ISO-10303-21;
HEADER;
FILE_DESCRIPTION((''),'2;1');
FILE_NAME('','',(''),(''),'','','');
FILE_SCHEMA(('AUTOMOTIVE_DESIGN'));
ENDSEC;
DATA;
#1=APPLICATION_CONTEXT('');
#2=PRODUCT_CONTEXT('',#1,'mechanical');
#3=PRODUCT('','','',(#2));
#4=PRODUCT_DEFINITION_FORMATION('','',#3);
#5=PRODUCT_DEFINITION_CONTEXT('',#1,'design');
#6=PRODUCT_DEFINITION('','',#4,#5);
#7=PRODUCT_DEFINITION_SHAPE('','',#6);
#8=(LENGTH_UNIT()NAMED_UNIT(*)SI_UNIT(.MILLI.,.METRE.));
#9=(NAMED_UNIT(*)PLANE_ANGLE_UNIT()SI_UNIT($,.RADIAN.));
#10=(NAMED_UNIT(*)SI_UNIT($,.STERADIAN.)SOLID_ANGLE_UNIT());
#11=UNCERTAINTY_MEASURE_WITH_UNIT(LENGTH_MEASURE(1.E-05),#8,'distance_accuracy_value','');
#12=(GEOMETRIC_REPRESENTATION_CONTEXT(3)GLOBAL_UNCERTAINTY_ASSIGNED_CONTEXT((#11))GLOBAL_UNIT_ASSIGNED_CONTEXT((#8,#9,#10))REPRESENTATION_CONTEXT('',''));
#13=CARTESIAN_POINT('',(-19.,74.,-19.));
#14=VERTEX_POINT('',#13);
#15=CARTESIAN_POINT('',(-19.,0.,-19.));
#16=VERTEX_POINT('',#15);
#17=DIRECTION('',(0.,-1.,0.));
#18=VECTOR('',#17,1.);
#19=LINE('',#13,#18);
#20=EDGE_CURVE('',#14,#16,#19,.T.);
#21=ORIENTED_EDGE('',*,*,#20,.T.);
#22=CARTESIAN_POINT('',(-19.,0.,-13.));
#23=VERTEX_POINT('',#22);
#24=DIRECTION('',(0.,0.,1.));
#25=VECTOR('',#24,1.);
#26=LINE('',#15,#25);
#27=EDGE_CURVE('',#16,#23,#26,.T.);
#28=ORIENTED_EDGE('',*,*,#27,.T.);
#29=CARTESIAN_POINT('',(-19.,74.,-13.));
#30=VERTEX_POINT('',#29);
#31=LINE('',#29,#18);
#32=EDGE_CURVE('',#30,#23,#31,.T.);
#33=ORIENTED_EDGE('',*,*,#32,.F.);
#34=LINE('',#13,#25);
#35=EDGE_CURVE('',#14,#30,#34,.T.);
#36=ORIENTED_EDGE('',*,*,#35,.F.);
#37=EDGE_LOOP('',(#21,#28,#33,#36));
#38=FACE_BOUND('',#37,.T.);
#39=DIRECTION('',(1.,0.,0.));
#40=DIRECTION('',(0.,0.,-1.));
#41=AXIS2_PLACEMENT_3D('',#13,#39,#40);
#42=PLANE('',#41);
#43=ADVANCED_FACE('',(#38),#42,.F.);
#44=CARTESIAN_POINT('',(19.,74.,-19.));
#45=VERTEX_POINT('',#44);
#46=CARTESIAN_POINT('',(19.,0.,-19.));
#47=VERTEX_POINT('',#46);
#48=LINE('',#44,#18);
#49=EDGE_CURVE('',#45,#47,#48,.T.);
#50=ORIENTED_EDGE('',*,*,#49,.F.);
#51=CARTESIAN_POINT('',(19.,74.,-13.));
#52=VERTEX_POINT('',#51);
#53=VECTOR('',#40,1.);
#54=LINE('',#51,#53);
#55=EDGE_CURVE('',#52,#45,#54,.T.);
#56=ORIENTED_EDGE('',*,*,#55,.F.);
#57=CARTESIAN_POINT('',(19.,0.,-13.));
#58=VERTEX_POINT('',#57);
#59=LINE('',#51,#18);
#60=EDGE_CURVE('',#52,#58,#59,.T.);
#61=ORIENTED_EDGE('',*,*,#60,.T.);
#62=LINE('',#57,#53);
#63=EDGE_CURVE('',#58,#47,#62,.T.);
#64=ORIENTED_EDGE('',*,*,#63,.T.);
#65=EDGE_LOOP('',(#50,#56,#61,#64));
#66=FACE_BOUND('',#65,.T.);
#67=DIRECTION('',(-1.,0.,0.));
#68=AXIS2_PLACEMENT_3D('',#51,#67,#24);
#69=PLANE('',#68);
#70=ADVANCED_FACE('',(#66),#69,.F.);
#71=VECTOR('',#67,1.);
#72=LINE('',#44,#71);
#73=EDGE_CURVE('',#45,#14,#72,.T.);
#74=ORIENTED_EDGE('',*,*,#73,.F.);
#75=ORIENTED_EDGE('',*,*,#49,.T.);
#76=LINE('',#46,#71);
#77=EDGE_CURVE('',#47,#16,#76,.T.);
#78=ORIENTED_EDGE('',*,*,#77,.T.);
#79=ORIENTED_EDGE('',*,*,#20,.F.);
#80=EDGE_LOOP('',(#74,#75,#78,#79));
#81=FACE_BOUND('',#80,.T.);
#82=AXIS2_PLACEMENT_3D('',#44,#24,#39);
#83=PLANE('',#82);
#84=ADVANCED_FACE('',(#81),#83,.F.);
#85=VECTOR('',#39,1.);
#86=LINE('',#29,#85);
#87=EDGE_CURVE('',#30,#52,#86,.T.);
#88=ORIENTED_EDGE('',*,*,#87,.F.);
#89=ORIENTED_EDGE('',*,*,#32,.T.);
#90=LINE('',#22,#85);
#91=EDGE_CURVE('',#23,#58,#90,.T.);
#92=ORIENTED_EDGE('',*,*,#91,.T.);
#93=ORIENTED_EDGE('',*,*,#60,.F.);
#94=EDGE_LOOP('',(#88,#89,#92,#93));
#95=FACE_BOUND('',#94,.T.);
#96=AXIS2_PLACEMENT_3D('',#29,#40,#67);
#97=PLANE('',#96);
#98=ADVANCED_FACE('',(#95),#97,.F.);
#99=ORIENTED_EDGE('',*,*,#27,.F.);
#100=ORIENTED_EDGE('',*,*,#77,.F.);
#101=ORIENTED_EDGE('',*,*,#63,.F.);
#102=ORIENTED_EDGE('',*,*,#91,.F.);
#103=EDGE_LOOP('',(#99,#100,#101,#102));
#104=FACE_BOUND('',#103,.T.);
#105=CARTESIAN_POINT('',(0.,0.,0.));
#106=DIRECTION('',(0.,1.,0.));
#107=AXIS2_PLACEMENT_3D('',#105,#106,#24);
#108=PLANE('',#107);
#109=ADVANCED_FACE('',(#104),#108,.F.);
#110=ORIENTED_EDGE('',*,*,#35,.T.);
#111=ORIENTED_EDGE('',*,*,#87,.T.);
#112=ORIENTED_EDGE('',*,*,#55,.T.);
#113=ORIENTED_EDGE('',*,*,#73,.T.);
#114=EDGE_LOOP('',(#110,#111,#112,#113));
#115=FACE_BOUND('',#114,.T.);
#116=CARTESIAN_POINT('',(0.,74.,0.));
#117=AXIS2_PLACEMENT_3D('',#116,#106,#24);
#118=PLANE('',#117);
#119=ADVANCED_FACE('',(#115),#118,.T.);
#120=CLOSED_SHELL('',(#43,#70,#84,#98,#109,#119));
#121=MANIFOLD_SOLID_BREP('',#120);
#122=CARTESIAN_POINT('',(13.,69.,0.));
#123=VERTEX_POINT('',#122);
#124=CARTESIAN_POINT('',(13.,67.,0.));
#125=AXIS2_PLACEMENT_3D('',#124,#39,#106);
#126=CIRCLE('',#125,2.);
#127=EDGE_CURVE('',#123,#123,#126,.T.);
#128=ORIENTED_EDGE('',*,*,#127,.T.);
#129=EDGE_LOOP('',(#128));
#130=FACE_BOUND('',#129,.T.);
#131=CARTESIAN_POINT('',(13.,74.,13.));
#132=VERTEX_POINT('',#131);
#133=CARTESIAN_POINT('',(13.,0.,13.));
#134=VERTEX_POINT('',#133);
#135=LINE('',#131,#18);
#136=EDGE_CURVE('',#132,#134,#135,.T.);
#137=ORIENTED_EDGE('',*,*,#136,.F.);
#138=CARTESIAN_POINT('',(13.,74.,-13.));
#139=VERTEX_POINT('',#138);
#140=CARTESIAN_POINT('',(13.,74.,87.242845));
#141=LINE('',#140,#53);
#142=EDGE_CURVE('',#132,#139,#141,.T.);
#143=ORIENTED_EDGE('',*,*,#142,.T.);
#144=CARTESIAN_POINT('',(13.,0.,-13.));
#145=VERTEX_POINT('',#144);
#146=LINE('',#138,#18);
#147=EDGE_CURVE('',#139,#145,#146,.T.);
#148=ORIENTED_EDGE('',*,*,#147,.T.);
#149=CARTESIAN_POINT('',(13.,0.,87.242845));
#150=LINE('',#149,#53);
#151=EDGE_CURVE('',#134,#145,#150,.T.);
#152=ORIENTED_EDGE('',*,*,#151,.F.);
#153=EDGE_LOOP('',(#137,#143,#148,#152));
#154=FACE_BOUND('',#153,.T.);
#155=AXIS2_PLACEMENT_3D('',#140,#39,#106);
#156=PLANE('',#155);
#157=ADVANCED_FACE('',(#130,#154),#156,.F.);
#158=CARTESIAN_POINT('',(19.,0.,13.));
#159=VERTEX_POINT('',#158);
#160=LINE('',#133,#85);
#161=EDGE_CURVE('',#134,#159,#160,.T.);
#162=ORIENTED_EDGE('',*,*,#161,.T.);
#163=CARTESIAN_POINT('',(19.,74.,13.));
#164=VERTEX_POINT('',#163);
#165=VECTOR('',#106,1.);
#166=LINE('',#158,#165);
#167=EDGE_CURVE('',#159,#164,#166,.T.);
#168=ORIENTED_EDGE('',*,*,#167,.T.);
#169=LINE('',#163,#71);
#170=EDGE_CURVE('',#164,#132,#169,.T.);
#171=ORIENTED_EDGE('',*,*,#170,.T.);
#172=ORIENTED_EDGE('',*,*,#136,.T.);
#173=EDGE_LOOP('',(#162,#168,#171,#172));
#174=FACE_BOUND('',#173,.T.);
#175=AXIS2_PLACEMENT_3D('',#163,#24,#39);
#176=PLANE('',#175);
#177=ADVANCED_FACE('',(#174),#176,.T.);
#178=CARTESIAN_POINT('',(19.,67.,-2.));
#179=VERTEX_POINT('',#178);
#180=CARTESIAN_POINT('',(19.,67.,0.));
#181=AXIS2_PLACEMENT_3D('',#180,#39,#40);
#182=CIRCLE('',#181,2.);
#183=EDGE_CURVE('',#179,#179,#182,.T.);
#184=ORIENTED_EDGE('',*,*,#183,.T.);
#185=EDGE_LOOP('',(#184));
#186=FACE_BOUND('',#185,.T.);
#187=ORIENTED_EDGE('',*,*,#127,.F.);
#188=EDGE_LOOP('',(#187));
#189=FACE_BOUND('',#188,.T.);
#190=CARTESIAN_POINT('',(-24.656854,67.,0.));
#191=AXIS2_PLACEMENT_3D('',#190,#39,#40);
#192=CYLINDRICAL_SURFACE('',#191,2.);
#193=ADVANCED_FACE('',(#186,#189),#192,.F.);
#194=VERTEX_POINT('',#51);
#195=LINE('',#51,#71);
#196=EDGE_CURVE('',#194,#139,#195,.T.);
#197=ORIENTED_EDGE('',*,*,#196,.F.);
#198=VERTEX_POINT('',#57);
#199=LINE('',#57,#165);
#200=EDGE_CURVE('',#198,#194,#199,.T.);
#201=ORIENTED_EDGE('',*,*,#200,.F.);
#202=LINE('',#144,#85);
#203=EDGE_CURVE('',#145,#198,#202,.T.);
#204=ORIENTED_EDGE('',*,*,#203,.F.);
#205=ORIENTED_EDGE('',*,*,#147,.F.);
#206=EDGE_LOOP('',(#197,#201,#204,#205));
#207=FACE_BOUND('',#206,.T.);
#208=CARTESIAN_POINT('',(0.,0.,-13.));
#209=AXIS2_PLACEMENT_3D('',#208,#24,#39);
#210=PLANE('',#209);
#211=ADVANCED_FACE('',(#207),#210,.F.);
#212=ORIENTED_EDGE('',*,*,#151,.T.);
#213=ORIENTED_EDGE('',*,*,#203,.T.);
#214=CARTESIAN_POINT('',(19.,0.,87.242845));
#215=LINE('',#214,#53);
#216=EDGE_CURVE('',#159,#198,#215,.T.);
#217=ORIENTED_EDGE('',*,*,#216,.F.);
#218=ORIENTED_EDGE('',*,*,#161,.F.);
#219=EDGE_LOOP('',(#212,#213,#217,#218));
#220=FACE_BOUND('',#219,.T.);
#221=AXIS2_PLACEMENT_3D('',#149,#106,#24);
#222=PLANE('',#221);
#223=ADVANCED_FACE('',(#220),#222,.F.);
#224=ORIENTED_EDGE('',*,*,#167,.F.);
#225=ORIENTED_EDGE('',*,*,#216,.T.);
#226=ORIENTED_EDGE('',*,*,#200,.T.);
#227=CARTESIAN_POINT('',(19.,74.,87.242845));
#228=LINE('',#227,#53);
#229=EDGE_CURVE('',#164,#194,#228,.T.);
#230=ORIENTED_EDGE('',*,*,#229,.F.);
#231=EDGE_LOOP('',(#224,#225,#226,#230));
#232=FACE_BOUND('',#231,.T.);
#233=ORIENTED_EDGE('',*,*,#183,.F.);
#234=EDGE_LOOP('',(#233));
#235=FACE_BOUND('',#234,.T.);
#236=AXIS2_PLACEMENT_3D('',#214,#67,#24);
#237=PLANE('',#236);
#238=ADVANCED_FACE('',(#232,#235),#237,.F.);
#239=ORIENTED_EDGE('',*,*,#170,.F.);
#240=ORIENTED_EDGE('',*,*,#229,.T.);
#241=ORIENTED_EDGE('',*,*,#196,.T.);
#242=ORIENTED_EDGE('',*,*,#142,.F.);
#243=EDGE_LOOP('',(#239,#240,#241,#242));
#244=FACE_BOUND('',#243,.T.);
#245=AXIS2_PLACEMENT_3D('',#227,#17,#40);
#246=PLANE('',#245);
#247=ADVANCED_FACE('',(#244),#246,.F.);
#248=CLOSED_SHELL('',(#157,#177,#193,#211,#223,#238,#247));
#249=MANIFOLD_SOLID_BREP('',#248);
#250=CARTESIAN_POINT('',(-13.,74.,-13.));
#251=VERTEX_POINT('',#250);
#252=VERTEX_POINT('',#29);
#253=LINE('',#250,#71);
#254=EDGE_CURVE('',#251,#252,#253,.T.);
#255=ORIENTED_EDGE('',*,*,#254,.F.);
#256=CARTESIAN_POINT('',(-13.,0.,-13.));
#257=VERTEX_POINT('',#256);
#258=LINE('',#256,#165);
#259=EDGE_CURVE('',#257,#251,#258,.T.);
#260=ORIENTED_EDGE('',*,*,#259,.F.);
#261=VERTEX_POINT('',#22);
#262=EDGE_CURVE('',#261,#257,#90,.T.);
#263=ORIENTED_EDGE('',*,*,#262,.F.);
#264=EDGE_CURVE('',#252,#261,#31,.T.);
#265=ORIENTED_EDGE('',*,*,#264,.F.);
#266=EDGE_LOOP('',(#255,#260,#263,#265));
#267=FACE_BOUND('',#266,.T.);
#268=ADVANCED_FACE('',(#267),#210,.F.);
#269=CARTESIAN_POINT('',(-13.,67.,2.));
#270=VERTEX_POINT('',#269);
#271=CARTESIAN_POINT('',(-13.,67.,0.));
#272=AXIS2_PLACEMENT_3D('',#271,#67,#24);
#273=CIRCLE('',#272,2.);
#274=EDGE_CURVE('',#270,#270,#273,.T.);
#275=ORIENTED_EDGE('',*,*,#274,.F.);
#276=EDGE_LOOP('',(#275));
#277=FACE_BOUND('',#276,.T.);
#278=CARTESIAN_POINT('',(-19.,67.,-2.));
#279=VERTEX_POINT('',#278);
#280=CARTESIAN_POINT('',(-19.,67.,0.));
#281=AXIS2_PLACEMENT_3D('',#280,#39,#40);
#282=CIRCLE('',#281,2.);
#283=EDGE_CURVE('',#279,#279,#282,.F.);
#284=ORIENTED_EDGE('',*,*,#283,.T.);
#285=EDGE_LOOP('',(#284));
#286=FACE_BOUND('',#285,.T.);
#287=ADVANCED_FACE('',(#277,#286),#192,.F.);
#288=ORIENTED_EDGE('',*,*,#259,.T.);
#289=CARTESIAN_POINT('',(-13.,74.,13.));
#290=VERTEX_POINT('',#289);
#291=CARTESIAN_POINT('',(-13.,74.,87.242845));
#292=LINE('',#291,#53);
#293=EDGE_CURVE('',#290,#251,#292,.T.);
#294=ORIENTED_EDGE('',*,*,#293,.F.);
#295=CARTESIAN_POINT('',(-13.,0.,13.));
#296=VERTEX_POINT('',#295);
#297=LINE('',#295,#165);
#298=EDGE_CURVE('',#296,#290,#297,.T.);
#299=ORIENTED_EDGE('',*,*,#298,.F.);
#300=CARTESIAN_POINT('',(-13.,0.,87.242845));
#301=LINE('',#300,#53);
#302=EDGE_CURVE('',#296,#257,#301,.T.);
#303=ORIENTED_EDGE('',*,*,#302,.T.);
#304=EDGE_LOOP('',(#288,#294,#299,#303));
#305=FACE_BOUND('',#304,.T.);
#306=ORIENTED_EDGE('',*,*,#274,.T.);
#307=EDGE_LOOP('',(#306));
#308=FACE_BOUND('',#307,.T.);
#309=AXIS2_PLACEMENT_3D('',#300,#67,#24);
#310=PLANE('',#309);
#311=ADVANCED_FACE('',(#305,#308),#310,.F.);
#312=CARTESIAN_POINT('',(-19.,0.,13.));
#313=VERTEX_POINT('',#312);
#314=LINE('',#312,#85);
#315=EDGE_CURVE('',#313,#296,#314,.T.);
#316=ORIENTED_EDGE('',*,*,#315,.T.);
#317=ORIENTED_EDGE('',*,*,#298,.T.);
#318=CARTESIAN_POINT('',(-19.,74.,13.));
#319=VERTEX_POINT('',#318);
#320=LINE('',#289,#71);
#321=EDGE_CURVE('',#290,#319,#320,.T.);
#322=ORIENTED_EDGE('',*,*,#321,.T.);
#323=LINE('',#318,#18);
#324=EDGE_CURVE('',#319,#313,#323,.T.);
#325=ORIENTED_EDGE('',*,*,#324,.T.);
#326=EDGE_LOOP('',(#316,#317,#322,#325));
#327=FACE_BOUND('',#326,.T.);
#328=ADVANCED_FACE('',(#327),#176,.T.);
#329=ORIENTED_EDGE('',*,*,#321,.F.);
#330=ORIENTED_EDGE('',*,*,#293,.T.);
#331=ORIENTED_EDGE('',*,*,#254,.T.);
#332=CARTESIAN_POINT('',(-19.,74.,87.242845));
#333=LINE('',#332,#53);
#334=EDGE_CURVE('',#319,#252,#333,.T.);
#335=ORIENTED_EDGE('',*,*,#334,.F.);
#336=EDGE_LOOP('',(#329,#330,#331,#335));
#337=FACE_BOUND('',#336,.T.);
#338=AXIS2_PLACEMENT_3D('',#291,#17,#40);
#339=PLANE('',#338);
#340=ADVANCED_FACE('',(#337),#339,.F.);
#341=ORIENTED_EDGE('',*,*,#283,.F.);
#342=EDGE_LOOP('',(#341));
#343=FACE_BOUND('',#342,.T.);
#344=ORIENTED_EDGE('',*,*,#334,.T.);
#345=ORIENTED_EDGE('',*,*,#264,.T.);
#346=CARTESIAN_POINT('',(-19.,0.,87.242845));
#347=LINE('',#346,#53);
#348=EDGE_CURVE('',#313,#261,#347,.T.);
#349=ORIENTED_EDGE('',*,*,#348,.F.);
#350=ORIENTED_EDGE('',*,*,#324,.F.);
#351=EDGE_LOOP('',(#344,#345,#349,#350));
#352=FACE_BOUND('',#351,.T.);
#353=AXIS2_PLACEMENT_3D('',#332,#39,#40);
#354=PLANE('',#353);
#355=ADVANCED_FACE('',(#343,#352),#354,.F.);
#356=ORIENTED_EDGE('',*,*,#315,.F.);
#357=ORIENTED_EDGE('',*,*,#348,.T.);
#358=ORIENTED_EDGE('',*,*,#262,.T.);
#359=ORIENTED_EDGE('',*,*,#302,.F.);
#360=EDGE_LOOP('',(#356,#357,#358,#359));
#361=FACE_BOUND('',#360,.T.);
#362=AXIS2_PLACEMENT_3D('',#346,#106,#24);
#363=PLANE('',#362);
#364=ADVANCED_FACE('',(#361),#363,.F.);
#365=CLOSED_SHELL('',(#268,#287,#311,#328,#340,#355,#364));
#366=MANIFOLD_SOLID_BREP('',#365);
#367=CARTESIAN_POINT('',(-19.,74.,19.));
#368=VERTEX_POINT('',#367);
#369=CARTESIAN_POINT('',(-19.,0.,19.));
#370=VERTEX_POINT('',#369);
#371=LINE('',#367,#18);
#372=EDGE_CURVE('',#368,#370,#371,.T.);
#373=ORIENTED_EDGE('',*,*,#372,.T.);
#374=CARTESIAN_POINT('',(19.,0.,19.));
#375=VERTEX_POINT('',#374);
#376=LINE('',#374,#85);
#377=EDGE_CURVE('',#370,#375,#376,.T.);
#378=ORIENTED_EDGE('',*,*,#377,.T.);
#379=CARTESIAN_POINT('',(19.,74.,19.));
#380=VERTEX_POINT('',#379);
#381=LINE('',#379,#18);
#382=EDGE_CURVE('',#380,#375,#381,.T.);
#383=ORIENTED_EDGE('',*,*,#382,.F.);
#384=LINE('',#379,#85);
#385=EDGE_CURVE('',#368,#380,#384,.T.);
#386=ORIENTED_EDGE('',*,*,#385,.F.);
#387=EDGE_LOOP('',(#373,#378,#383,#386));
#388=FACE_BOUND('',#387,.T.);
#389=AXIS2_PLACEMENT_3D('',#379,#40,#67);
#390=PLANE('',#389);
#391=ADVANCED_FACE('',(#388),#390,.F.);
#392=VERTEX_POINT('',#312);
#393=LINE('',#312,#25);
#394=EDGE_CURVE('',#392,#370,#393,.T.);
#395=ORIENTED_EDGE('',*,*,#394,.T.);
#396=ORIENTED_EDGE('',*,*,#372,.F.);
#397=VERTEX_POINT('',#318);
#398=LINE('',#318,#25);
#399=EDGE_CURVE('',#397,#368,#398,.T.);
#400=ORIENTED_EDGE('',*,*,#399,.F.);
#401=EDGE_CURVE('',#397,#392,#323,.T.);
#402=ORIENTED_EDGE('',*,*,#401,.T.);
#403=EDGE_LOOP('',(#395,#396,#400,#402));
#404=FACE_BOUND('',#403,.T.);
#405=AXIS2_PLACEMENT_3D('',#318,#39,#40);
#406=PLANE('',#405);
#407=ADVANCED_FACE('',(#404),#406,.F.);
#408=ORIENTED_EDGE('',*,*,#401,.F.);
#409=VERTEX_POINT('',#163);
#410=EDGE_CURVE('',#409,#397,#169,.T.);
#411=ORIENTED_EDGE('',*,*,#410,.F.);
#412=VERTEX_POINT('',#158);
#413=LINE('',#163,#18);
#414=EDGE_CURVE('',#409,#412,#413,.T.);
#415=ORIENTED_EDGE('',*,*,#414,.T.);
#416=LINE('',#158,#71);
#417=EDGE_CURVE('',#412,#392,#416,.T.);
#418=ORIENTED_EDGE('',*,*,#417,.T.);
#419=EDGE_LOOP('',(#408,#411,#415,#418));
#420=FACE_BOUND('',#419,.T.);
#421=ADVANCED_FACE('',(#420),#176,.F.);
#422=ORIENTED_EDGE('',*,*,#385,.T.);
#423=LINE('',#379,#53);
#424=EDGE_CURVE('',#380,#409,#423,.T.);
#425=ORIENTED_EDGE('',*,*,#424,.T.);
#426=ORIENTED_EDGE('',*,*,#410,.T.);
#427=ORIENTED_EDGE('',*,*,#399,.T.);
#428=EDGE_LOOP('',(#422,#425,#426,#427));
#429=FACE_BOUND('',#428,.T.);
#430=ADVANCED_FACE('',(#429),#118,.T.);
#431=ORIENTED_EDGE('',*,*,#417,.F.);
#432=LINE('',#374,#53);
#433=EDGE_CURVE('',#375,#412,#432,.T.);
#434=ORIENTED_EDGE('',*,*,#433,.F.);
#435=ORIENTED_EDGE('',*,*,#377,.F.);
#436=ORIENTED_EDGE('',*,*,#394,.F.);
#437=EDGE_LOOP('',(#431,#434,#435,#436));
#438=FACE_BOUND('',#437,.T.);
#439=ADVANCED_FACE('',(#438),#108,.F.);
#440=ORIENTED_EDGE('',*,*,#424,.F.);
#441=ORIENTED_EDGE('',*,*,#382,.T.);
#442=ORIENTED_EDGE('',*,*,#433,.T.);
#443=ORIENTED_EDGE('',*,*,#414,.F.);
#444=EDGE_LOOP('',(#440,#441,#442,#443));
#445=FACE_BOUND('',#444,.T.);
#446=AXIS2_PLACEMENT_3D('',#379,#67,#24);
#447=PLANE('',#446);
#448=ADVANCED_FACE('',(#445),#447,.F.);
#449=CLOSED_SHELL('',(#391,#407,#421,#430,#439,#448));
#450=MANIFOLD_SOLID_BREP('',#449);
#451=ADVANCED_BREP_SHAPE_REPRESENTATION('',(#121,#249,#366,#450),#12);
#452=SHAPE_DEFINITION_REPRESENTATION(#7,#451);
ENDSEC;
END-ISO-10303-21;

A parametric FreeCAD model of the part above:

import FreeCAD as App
import Part
import Sketcher
from FreeCAD import Vector
Q = App.Units.Quantity


def add_polygon(sketch, points):
    """Adds a closed chain of lines whose ends are joined by coincident constraints."""
    first, n = sketch.GeometryCount, len(points)
    for a, b in zip(points, points[1:] + points[:1]):
        sketch.addGeometry(Part.LineSegment(App.Vector(*a, 0), App.Vector(*b, 0)), False)
    for i in range(n):
        sketch.addConstraint(Sketcher.Constraint("Coincident", first + i, 2, first + (i + 1) % n, 1))

doc = App.newDocument("Part")
body = doc.addObject("PartDesign::Body", "Body")

# Sketch on XZ plane
sketch1 = body.newObject("Sketcher::SketchObject", "Sketch")
sketch1.AttachmentSupport = (doc.getObject("XZ_Plane"), [""])
sketch1.MapMode = "FlatFace"
add_polygon(sketch1, [(-19, 13), (-19, 19), (19, 19), (19, 13)])  # lines 0-3
sketch1.addConstraint(Sketcher.Constraint("Vertical", 0))
sketch1.addConstraint(Sketcher.Constraint("Horizontal", 1))
sketch1.addConstraint(Sketcher.Constraint("Vertical", 2))
sketch1.addConstraint(Sketcher.Constraint("Horizontal", 3))
sketch1.addConstraint(Sketcher.Constraint("DistanceX", 1, 1, 1, 2, Q("38 mm")))
sketch1.addConstraint(Sketcher.Constraint("DistanceY", 0, 1, 0, 2, Q("6 mm")))
sketch1.addConstraint(Sketcher.Constraint("DistanceX", 0, 2, -1, 1, Q("19 mm")))
sketch1.addConstraint(Sketcher.Constraint("DistanceY", -1, 1, 0, 2, Q("19 mm")))
pad1 = body.newObject("PartDesign::Pad", "Pad")
pad1.Profile = sketch1
pad1.Length = 74
pad1.Reversed = True
body2 = doc.addObject("PartDesign::Body", "Body001")

# Sketch on XZ plane
sketch2 = body2.newObject("Sketcher::SketchObject", "Sketch001")
sketch2.AttachmentSupport = (doc.getObject("XZ_Plane001"), [""])
sketch2.MapMode = "FlatFace"
add_polygon(sketch2, [(-19, -19), (-19, -13), (19, -13), (19, -19)])  # lines 0-3
sketch2.addConstraint(Sketcher.Constraint("Vertical", 0))
sketch2.addConstraint(Sketcher.Constraint("Horizontal", 1))
sketch2.addConstraint(Sketcher.Constraint("Vertical", 2))
sketch2.addConstraint(Sketcher.Constraint("Horizontal", 3))
sketch2.addConstraint(Sketcher.Constraint("DistanceX", 1, 1, 1, 2, Q("38 mm")))
sketch2.addConstraint(Sketcher.Constraint("DistanceY", 0, 1, 0, 2, Q("6 mm")))
sketch2.addConstraint(Sketcher.Constraint("DistanceX", 0, 2, -1, 1, Q("19 mm")))
sketch2.addConstraint(Sketcher.Constraint("DistanceY", 0, 2, -1, 1, Q("13 mm")))
pad2 = body2.newObject("PartDesign::Pad", "Pad001")
pad2.Profile = sketch2
pad2.Length = 74
pad2.Reversed = True
body3 = doc.addObject("PartDesign::Body", "Body002")

# Sketch on XY plane
sketch3 = body3.newObject("Sketcher::SketchObject", "Sketch002")
sketch3.AttachmentSupport = (doc.getObject("XY_Plane002"), [""])
sketch3.MapMode = "FlatFace"
sketch3.AttachmentOffset = App.Placement(Vector(0, 0, -13), App.Rotation())
add_polygon(sketch3, [(13, 74), (13, 0), (19, 0), (19, 74)])  # lines 0-3
sketch3.addConstraint(Sketcher.Constraint("Vertical", 0))
sketch3.addConstraint(Sketcher.Constraint("Horizontal", 1))
sketch3.addConstraint(Sketcher.Constraint("Vertical", 2))
sketch3.addConstraint(Sketcher.Constraint("Horizontal", 3))
sketch3.addConstraint(Sketcher.Constraint("PointOnObject", 0, 2, -1))
sketch3.addConstraint(Sketcher.Constraint("DistanceX", 1, 1, 1, 2, Q("6 mm")))
sketch3.addConstraint(Sketcher.Constraint("DistanceY", 0, 2, 0, 1, Q("74 mm")))
sketch3.addConstraint(Sketcher.Constraint("DistanceX", -1, 1, 0, 2, Q("13 mm")))
pad3 = body3.newObject("PartDesign::Pad", "Pad002")
pad3.Profile = sketch3
pad3.Length = 26
body4 = doc.addObject("PartDesign::Body", "Body003")

# Sketch on XY plane
sketch4 = body4.newObject("Sketcher::SketchObject", "Sketch003")
sketch4.AttachmentSupport = (doc.getObject("XY_Plane003"), [""])
sketch4.MapMode = "FlatFace"
sketch4.AttachmentOffset = App.Placement(Vector(0, 0, -13), App.Rotation())
add_polygon(sketch4, [(-19, 74), (-19, 0), (-13, 0), (-13, 74)])  # lines 0-3
sketch4.addConstraint(Sketcher.Constraint("Vertical", 0))
sketch4.addConstraint(Sketcher.Constraint("Horizontal", 1))
sketch4.addConstraint(Sketcher.Constraint("Vertical", 2))
sketch4.addConstraint(Sketcher.Constraint("Horizontal", 3))
sketch4.addConstraint(Sketcher.Constraint("PointOnObject", 0, 2, -1))
sketch4.addConstraint(Sketcher.Constraint("DistanceX", 1, 1, 1, 2, Q("6 mm")))
sketch4.addConstraint(Sketcher.Constraint("DistanceY", 0, 2, 0, 1, Q("74 mm")))
sketch4.addConstraint(Sketcher.Constraint("DistanceX", 0, 2, -1, 1, Q("19 mm")))
pad4 = body4.newObject("PartDesign::Pad", "Pad003")
pad4.Profile = sketch4
pad4.Length = 26
body5 = doc.addObject("PartDesign::Body", "Body004")

# Sketch on YZ plane
sketch5 = body5.newObject("Sketcher::SketchObject", "Sketch004")
sketch5.AttachmentSupport = (doc.getObject("YZ_Plane004"), [""])
sketch5.MapMode = "FlatFace"
sketch5.AttachmentOffset = App.Placement(Vector(0, 0, -19), App.Rotation())
sketch5.addGeometry(Part.Circle(Vector(67, 0, 0), Vector(0, 0, 1), 2), False)
sketch5.addConstraint(Sketcher.Constraint("PointOnObject", 0, 3, -1))
sketch5.addConstraint(Sketcher.Constraint("Diameter", 0, Q("4 mm")))
sketch5.addConstraint(Sketcher.Constraint("DistanceX", -1, 1, 0, 3, Q("67 mm")))
pad5 = body5.newObject("PartDesign::Pad", "Pad004")
pad5.Profile = sketch5
pad5.Length = 38
doc.recompute()

body6 = doc.addObject("PartDesign::Body", "Body005")
body6.BaseFeature = body5
boolean = body3.newObject("PartDesign::Boolean", "Boolean")
boolean.Type = "Cut"
boolean.addObjects([body6])
doc.recompute()

boolean2 = body4.newObject("PartDesign::Boolean", "Boolean001")
boolean2.Type = "Cut"
boolean2.addObjects([body5])

doc.recompute()
